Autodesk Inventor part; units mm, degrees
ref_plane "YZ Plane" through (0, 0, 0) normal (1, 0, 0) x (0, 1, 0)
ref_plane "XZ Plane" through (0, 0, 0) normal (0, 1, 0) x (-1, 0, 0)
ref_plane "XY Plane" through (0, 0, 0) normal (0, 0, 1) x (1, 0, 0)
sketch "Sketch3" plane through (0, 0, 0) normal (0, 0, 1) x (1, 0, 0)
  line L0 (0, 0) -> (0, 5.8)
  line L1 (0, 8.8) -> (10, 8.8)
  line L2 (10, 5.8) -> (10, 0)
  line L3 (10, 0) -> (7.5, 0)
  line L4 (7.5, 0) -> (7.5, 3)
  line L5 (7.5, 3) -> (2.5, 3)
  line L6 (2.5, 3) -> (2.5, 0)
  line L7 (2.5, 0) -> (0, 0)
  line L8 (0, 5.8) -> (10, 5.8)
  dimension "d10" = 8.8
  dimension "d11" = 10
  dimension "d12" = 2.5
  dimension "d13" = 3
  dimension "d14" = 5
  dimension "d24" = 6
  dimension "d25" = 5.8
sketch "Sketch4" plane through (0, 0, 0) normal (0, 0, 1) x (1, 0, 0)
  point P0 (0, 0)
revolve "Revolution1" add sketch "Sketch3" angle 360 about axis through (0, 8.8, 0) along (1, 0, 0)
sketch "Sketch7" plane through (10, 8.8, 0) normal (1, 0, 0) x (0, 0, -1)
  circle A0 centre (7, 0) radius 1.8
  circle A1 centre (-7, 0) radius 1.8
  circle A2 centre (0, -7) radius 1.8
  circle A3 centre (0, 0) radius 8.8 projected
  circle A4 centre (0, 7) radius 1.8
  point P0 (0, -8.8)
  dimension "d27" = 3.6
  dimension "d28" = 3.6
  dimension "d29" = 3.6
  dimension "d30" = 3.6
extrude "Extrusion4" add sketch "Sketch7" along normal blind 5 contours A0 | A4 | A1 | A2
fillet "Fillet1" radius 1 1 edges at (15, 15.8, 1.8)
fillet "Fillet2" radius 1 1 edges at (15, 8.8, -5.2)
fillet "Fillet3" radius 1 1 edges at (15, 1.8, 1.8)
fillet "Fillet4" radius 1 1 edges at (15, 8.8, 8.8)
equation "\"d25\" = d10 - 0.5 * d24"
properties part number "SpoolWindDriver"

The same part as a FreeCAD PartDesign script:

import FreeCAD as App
import Part
import Sketcher
from FreeCAD import Vector
Q = App.Units.Quantity


def edges_at(feature, points):
    """Names of the edges that pass closest to the given points."""
    edges = feature.Shape.Edges
    near = lambda p: min(range(len(edges)), key=lambda i: edges[i].distToShape(Part.Vertex(*p))[0])
    return sorted({f"Edge{near(p) + 1}" for p in points})


def add_polygon(sketch, points):
    """Adds a closed chain of lines whose ends are joined by coincident constraints."""
    first, n = sketch.GeometryCount, len(points)
    for a, b in zip(points, points[1:] + points[:1]):
        sketch.addGeometry(Part.LineSegment(App.Vector(*a, 0), App.Vector(*b, 0)), False)
    for i in range(n):
        sketch.addConstraint(Sketcher.Constraint("Coincident", first + i, 2, first + (i + 1) % n, 1))

doc = App.newDocument("Part")
body = doc.addObject("PartDesign::Body", "Body")

# Sketch on XY plane
sketch1 = body.newObject("Sketcher::SketchObject", "Sketch")
sketch1.AttachmentSupport = (doc.getObject("XY_Plane"), [""])
sketch1.MapMode = "FlatFace"
add_polygon(sketch1, [(0, 5.8), (0, 0), (2.5, 0), (2.5, 3), (7.5, 3), (7.5, 0), (10, 0), (10, 5.8)])  # lines 0-7
sketch1.addGeometry(Part.LineSegment(Vector(0, 8.8, 0), Vector(10, 8.8, 0)), True)  # axis
sketch1.addConstraint(Sketcher.Constraint("Vertical", 0))
sketch1.addConstraint(Sketcher.Constraint("Horizontal", 1))
sketch1.addConstraint(Sketcher.Constraint("Vertical", 2))
sketch1.addConstraint(Sketcher.Constraint("Horizontal", 3))
sketch1.addConstraint(Sketcher.Constraint("Vertical", 4))
sketch1.addConstraint(Sketcher.Constraint("Horizontal", 5))
sketch1.addConstraint(Sketcher.Constraint("Vertical", 6))
sketch1.addConstraint(Sketcher.Constraint("Horizontal", 7))
sketch1.addConstraint(Sketcher.Constraint("Horizontal", 8))
sketch1.addConstraint(Sketcher.Constraint("Coincident", 0, 2, -1, 1))
sketch1.addConstraint(Sketcher.Constraint("PointOnObject", 4, 2, -1))
sketch1.addConstraint(Sketcher.Constraint("PointOnObject", 8, 1, -2))
sketch1.addConstraint(Sketcher.Constraint("Vertical", 6, 2, 8, 2))
sketch1.addConstraint(Sketcher.Constraint("Equal", 1, 5))
sketch1.addConstraint(Sketcher.Constraint("DistanceX", 3, 1, 3, 2, Q("5 mm")))
sketch1.addConstraint(Sketcher.Constraint("DistanceX", 7, 2, 7, 1, Q("10 mm")))
sketch1.addConstraint(Sketcher.Constraint("DistanceY", 2, 1, 2, 2, Q("3 mm")))
sketch1.addConstraint(Sketcher.Constraint("DistanceY", 0, 2, 0, 1, Q("5.8 mm")))
sketch1.addConstraint(Sketcher.Constraint("DistanceY", 7, 2, 8, 1, Q("3 mm")))
revolution = body.newObject("PartDesign::Revolution", "Revolution")
revolution.Profile = sketch1
revolution.ReferenceAxis = (sketch1, ["Axis0"])
revolution.Angle = 360

# Sketch on YZ plane
sketch2 = body.newObject("Sketcher::SketchObject", "Sketch001")
sketch2.AttachmentSupport = (doc.getObject("YZ_Plane"), [""])
sketch2.MapMode = "FlatFace"
sketch2.AttachmentOffset = App.Placement(Vector(0, 0, 10), App.Rotation())
sketch2.addGeometry(Part.Circle(Vector(8.8, -7, 0), Vector(0, 0, 1), 1.8), False)
sketch2.addGeometry(Part.Circle(Vector(15.8, 0, 0), Vector(0, 0, 1), 1.8), False)
sketch2.addGeometry(Part.Circle(Vector(8.8, 7, 0), Vector(0, 0, 1), 1.8), False)
sketch2.addGeometry(Part.Circle(Vector(1.8, 0, 0), Vector(0, 0, 1), 1.8), False)
sketch2.addConstraint(Sketcher.Constraint("Equal", 0, 1))
sketch2.addConstraint(Sketcher.Constraint("Equal", 1, 2))
sketch2.addConstraint(Sketcher.Constraint("Equal", 2, 3))
sketch2.addConstraint(Sketcher.Constraint("Symmetric", 0, 3, 2, 3, -1))
sketch2.addConstraint(Sketcher.Constraint("PointOnObject", 1, 3, -1))
sketch2.addConstraint(Sketcher.Constraint("PointOnObject", 3, 3, -1))
sketch2.addConstraint(Sketcher.Constraint("Diameter", 0, Q("3.6 mm")))
sketch2.addConstraint(Sketcher.Constraint("DistanceY", 0, 3, -1, 1, Q("7 mm")))
sketch2.addConstraint(Sketcher.Constraint("DistanceX", 0, 3, 1, 3, Q("7 mm")))
sketch2.addConstraint(Sketcher.Constraint("DistanceX", 3, 3, 0, 3, Q("7 mm")))
sketch2.addConstraint(Sketcher.Constraint("DistanceX", -1, 1, 0, 3, Q("8.8 mm")))
pad1 = body.newObject("PartDesign::Pad", "Pad")
pad1.Profile = sketch2
pad1.Length = 5
doc.recompute()

fillet = body.newObject("PartDesign::Fillet", "Fillet")
fillet.Base = (pad1, edges_at(pad1, [(15, 15.8, 1.8)]))
fillet.Radius = 1
doc.recompute()

fillet2 = body.newObject("PartDesign::Fillet", "Fillet001")
fillet2.Base = (fillet, edges_at(fillet, [(15, 8.8, -5.2)]))
fillet2.Radius = 1
doc.recompute()

fillet3 = body.newObject("PartDesign::Fillet", "Fillet002")
fillet3.Base = (fillet2, edges_at(fillet2, [(15, 1.8, 1.8)]))
fillet3.Radius = 1
doc.recompute()

fillet4 = body.newObject("PartDesign::Fillet", "Fillet003")
fillet4.Base = (fillet3, edges_at(fillet3, [(15, 8.8, 8.8)]))
fillet4.Radius = 1

doc.recompute()
